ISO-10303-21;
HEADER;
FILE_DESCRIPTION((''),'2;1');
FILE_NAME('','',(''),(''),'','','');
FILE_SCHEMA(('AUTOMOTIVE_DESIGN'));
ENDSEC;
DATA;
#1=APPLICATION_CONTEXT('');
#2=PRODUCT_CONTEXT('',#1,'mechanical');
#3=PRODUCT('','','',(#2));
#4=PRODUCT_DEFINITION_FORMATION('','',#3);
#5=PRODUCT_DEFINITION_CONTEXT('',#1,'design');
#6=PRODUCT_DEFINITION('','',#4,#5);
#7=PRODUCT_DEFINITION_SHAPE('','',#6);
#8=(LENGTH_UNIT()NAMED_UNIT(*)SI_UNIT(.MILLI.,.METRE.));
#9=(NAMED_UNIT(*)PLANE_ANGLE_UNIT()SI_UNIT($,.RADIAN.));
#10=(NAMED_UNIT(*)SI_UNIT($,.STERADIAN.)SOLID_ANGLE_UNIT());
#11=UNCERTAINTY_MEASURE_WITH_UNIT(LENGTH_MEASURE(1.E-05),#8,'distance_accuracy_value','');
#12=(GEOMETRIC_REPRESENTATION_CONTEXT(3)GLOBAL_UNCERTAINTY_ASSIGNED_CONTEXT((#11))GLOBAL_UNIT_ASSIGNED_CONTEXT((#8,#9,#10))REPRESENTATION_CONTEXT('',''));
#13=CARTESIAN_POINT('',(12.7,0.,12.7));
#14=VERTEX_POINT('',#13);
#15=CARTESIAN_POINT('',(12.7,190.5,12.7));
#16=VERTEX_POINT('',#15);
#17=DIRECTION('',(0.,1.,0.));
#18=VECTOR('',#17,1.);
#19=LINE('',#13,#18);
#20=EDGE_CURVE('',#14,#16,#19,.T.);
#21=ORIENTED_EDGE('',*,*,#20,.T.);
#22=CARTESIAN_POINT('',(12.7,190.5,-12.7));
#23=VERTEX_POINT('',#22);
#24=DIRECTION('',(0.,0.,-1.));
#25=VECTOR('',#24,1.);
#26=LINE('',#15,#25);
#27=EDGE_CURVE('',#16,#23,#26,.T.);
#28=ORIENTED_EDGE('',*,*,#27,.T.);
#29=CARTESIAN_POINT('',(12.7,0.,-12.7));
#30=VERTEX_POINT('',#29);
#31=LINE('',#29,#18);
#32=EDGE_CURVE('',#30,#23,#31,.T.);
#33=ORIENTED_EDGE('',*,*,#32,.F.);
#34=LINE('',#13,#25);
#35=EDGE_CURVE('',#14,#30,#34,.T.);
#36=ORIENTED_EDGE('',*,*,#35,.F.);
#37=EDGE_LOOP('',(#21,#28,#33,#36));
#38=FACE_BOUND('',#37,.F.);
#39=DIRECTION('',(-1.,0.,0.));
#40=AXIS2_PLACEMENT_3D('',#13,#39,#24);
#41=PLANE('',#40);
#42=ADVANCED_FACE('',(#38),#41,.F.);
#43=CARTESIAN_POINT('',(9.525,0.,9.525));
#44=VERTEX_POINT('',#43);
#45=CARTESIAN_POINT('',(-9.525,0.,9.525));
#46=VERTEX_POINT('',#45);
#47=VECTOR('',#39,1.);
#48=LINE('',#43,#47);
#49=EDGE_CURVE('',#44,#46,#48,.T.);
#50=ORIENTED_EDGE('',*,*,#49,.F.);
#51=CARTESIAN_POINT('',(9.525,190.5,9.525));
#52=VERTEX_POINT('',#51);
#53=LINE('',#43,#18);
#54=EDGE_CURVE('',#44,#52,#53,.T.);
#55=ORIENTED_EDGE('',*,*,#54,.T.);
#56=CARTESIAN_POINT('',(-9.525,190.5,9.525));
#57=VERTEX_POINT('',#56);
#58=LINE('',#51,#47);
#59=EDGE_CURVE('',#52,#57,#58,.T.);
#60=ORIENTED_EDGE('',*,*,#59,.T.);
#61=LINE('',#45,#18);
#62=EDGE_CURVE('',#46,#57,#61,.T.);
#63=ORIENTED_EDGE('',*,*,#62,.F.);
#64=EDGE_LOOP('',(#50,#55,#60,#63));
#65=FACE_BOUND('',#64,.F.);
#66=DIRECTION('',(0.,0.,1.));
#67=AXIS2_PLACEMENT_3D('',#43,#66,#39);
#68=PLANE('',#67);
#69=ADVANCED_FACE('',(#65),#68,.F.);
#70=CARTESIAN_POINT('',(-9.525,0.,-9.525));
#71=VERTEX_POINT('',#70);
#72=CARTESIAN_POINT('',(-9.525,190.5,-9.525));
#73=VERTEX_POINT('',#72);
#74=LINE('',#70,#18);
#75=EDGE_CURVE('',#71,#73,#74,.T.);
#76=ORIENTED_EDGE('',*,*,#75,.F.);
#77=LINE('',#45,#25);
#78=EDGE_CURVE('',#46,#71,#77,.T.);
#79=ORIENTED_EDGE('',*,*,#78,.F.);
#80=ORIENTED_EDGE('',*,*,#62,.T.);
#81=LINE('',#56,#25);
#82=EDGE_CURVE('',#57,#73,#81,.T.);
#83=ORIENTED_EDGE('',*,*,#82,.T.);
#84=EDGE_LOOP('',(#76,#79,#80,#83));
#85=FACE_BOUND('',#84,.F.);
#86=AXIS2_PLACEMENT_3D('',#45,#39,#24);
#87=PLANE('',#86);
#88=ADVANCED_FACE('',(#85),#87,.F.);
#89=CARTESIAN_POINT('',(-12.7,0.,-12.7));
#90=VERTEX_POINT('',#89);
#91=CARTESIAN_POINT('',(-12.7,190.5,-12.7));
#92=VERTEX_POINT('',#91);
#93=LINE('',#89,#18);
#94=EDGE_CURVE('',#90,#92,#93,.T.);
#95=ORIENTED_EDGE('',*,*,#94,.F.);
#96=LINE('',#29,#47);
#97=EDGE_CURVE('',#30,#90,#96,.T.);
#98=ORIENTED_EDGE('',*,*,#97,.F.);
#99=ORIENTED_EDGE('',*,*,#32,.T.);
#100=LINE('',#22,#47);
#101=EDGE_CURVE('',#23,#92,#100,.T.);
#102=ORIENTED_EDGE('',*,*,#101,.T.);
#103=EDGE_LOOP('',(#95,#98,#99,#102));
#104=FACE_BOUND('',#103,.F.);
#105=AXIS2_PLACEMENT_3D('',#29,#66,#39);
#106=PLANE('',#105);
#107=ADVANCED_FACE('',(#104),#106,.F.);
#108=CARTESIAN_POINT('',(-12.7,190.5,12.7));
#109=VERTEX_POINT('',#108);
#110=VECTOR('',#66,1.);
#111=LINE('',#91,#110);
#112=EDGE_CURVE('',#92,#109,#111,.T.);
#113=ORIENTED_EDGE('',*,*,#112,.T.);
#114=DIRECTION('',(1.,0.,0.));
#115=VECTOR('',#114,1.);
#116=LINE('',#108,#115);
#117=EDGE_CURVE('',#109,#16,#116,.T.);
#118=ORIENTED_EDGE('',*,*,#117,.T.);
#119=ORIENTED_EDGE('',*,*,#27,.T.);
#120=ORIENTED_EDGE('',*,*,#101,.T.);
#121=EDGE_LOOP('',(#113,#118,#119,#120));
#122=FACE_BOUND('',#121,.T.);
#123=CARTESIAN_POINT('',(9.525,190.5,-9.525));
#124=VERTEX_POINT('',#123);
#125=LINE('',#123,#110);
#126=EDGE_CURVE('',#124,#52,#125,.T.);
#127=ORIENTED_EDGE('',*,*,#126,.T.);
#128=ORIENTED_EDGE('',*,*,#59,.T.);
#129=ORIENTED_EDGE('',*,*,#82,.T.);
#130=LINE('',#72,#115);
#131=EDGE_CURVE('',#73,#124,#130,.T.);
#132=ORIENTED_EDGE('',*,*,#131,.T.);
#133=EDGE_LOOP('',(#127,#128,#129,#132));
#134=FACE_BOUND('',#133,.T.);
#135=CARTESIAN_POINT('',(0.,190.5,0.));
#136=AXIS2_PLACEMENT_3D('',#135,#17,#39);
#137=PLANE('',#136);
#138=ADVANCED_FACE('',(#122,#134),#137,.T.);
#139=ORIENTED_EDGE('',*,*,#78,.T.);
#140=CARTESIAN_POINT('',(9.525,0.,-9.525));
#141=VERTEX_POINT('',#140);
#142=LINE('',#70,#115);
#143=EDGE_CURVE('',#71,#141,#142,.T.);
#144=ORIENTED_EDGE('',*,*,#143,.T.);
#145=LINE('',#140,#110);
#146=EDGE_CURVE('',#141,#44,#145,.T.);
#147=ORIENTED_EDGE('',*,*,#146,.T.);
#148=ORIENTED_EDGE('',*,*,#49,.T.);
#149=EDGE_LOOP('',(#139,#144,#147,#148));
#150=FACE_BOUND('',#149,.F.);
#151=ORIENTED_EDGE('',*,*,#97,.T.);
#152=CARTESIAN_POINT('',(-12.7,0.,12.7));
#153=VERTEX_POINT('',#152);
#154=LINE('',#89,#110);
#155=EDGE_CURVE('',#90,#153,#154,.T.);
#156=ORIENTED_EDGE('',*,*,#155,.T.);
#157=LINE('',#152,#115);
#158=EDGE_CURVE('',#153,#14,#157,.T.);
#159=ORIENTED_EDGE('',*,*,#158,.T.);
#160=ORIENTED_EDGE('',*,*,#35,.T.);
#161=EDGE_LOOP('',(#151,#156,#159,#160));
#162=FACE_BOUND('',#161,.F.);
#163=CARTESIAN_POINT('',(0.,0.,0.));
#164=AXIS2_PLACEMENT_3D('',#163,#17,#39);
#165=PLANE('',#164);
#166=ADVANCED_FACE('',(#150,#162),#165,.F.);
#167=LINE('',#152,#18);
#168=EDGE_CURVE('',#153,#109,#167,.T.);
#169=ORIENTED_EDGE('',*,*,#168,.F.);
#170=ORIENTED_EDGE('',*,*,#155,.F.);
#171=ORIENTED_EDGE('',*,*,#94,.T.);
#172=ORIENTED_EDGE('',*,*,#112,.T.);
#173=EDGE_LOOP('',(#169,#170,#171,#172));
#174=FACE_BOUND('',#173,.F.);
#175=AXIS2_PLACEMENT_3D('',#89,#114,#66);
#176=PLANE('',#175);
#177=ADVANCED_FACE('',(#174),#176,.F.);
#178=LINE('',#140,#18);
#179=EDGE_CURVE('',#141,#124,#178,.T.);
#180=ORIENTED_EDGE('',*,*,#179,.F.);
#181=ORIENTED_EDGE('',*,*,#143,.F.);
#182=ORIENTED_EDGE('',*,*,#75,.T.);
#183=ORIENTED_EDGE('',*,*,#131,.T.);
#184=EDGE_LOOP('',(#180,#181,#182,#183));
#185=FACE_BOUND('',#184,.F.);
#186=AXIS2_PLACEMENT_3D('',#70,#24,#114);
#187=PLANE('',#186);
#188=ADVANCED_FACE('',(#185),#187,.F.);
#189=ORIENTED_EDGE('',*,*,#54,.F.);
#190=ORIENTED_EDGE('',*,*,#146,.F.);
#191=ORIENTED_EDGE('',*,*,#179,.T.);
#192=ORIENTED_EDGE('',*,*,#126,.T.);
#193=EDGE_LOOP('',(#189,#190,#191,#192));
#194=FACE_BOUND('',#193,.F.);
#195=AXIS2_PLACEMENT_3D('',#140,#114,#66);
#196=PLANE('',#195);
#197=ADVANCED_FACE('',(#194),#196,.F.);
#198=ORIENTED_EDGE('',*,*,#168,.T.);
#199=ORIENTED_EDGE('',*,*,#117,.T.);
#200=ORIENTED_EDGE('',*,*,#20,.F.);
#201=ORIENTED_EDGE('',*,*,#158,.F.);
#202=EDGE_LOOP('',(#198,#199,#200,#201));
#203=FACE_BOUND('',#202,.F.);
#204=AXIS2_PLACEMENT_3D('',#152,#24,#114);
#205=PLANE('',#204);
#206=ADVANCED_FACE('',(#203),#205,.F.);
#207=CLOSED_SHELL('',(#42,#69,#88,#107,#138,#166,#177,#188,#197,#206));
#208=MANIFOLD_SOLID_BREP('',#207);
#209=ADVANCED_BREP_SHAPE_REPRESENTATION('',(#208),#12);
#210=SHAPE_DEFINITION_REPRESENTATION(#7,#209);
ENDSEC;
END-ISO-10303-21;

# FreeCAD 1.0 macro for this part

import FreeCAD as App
import Part
import Sketcher

V = App.Vector
Q = App.Units.Quantity


def add_polygon(sketch, points):
    """Adds a closed chain of lines whose ends are joined by coincident constraints."""
    first, n = sketch.GeometryCount, len(points)
    for a, b in zip(points, points[1:] + points[:1]):
        sketch.addGeometry(Part.LineSegment(App.Vector(*a, 0), App.Vector(*b, 0)), False)
    for i in range(n):
        sketch.addConstraint(Sketcher.Constraint("Coincident", first + i, 2, first + (i + 1) % n, 1))

doc = App.newDocument("Part")
params = doc.addObject("Spreadsheet::Sheet", "Params")
for row, (alias, value) in enumerate([
    ("sketch1_width", "1 in"),
    ("pad1_length", "7.5 in"),
], start=1):
    params.set(f"A{row}", alias)
    params.set(f"B{row}", "=" + value)
    params.setAlias(f"B{row}", alias)

body = doc.addObject("PartDesign::Body", "Body")

sketch1 = doc.addObject("Sketcher::SketchObject", "Sketch")
body.addObject(sketch1)
sketch1.AttachmentSupport = (doc.XZ_Plane, [""])
sketch1.MapMode = "FlatFace"
add_polygon(sketch1, [(13, 13), (13, -13), (-13, -13), (-13, 13)])
add_polygon(sketch1, [(10, 10), (-10, 10), (-10, -10), (10, -10)])
sketch1.addConstraint([
    Sketcher.Constraint("Vertical", 0),
    Sketcher.Constraint("Horizontal", 1),
    Sketcher.Constraint("Vertical", 2),
    Sketcher.Constraint("Horizontal", 3),
    Sketcher.Constraint("Horizontal", 4),
    Sketcher.Constraint("Vertical", 5),
    Sketcher.Constraint("Horizontal", 6),
    Sketcher.Constraint("Vertical", 7),
    Sketcher.Constraint("Symmetric", 0, 2, 2, 2, -1, 1),
    Sketcher.Constraint("Symmetric", 4, 2, 6, 2, -1, 1),
    Sketcher.Constraint("Equal", 3, 0),
    Sketcher.Constraint("Equal", 6, 5),
    Sketcher.Constraint("DistanceX", 1, 2, 1, 1, Q("1 in")),
    Sketcher.Constraint("DistanceX", 2, 2, 4, 2, Q("0.125 in")),
])
sketch1.setExpression("Constraints[20]", "Params.sketch1_width")
pad1 = doc.addObject("PartDesign::Pad", "Pad")
body.addObject(pad1)
pad1.Profile = sketch1
pad1.setExpression("Length", "Params.pad1_length")
pad1.Reversed = True

doc.recompute()
